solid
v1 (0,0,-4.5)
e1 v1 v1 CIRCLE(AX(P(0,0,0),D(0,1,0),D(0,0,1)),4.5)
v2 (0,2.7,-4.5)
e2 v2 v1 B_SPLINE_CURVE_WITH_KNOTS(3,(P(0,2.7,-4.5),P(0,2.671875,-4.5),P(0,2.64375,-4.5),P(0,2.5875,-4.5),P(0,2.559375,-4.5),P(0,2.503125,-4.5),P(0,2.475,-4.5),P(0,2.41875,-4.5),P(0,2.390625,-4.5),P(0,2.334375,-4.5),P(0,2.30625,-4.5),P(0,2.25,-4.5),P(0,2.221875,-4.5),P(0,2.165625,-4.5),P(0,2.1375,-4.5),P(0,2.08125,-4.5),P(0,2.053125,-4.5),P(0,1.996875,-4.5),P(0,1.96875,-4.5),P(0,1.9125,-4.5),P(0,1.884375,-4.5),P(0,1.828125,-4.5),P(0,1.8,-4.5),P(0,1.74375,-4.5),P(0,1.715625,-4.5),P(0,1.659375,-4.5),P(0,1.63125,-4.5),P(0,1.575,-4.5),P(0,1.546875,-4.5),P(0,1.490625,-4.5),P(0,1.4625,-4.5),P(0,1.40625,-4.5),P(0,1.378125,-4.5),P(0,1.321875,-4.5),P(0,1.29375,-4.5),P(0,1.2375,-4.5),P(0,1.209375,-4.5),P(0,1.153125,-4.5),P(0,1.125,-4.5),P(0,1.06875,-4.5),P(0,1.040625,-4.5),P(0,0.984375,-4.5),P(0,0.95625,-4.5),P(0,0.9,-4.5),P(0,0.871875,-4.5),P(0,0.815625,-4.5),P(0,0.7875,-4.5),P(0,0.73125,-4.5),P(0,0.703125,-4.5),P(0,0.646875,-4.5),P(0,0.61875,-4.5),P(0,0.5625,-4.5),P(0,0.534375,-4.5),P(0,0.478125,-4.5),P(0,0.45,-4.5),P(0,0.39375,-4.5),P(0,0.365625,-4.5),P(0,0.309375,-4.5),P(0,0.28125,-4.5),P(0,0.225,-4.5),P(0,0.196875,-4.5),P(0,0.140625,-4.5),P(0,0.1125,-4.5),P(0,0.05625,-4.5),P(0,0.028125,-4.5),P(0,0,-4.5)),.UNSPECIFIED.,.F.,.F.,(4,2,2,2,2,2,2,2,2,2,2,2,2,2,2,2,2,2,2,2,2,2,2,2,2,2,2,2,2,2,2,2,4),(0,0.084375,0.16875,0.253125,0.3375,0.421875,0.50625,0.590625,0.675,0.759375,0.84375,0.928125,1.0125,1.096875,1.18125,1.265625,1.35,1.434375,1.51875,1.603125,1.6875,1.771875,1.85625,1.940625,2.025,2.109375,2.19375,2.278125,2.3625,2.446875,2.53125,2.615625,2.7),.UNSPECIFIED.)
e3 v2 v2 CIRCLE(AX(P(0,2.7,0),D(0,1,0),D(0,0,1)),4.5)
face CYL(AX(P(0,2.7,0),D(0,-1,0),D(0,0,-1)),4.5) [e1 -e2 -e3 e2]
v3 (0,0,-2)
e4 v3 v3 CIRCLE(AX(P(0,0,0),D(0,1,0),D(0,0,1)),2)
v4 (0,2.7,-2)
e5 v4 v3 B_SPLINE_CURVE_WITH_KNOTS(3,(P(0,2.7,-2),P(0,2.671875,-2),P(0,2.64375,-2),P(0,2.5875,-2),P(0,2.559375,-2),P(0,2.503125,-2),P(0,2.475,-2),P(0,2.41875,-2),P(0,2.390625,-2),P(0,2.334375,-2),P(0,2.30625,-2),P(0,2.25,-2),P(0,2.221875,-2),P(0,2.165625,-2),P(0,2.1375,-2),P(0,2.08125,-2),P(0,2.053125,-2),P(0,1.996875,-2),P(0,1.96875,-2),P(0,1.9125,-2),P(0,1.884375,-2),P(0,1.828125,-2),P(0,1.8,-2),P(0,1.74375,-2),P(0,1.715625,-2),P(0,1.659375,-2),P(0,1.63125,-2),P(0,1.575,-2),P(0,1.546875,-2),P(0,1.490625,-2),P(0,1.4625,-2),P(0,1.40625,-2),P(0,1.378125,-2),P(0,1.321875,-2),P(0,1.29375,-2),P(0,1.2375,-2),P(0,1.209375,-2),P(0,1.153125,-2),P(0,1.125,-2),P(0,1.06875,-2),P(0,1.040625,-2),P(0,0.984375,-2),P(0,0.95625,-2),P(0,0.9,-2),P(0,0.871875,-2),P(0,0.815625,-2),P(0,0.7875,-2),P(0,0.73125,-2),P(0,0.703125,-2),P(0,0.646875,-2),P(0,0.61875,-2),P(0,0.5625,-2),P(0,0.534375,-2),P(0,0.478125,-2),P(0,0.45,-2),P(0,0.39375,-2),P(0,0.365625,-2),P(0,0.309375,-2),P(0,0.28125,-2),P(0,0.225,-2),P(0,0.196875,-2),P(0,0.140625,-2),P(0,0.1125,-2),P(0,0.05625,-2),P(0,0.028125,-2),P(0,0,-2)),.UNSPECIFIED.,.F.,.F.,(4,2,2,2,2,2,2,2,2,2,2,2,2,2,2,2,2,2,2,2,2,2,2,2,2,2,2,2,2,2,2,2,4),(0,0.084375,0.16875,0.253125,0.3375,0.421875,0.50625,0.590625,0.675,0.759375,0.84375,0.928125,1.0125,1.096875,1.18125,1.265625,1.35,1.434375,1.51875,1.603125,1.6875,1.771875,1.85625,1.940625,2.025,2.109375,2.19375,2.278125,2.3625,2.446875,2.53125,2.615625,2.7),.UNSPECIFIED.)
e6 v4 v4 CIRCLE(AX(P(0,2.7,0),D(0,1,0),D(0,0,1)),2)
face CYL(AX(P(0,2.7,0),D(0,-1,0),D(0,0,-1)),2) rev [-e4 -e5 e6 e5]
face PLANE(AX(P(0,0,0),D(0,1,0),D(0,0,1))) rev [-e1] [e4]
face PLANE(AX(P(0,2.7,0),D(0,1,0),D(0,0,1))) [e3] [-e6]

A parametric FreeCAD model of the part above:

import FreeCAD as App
import Part
import Sketcher

V = App.Vector
Q = App.Units.Quantity

doc = App.newDocument("Part")
body = doc.addObject("PartDesign::Body", "Body")

# Sketch on XZ plane
sketch1 = doc.addObject("Sketcher::SketchObject", "Sketch")
body.addObject(sketch1)
sketch1.AttachmentSupport = (doc.XZ_Plane, [""])
sketch1.MapMode = "FlatFace"
sketch1.addGeometry(Part.Circle(V(0, 0, 0), V(0, 0, 1), 4.5), False)
sketch1.addGeometry(Part.Circle(V(0, 0, 0), V(0, 0, 1), 2), False)
sketch1.addConstraint(Sketcher.Constraint("Coincident", 0, 3, -1, 1))
sketch1.addConstraint(Sketcher.Constraint("Coincident", 1, 3, -1, 1))
sketch1.addConstraint(Sketcher.Constraint("Diameter", 0, Q("9 mm")))
sketch1.addConstraint(Sketcher.Constraint("Diameter", 1, Q("4 mm")))
pad1 = doc.addObject("PartDesign::Pad", "Pad")
body.addObject(pad1)
pad1.Profile = sketch1
pad1.Length = 2.7
pad1.Reversed = True

doc.recompute()
